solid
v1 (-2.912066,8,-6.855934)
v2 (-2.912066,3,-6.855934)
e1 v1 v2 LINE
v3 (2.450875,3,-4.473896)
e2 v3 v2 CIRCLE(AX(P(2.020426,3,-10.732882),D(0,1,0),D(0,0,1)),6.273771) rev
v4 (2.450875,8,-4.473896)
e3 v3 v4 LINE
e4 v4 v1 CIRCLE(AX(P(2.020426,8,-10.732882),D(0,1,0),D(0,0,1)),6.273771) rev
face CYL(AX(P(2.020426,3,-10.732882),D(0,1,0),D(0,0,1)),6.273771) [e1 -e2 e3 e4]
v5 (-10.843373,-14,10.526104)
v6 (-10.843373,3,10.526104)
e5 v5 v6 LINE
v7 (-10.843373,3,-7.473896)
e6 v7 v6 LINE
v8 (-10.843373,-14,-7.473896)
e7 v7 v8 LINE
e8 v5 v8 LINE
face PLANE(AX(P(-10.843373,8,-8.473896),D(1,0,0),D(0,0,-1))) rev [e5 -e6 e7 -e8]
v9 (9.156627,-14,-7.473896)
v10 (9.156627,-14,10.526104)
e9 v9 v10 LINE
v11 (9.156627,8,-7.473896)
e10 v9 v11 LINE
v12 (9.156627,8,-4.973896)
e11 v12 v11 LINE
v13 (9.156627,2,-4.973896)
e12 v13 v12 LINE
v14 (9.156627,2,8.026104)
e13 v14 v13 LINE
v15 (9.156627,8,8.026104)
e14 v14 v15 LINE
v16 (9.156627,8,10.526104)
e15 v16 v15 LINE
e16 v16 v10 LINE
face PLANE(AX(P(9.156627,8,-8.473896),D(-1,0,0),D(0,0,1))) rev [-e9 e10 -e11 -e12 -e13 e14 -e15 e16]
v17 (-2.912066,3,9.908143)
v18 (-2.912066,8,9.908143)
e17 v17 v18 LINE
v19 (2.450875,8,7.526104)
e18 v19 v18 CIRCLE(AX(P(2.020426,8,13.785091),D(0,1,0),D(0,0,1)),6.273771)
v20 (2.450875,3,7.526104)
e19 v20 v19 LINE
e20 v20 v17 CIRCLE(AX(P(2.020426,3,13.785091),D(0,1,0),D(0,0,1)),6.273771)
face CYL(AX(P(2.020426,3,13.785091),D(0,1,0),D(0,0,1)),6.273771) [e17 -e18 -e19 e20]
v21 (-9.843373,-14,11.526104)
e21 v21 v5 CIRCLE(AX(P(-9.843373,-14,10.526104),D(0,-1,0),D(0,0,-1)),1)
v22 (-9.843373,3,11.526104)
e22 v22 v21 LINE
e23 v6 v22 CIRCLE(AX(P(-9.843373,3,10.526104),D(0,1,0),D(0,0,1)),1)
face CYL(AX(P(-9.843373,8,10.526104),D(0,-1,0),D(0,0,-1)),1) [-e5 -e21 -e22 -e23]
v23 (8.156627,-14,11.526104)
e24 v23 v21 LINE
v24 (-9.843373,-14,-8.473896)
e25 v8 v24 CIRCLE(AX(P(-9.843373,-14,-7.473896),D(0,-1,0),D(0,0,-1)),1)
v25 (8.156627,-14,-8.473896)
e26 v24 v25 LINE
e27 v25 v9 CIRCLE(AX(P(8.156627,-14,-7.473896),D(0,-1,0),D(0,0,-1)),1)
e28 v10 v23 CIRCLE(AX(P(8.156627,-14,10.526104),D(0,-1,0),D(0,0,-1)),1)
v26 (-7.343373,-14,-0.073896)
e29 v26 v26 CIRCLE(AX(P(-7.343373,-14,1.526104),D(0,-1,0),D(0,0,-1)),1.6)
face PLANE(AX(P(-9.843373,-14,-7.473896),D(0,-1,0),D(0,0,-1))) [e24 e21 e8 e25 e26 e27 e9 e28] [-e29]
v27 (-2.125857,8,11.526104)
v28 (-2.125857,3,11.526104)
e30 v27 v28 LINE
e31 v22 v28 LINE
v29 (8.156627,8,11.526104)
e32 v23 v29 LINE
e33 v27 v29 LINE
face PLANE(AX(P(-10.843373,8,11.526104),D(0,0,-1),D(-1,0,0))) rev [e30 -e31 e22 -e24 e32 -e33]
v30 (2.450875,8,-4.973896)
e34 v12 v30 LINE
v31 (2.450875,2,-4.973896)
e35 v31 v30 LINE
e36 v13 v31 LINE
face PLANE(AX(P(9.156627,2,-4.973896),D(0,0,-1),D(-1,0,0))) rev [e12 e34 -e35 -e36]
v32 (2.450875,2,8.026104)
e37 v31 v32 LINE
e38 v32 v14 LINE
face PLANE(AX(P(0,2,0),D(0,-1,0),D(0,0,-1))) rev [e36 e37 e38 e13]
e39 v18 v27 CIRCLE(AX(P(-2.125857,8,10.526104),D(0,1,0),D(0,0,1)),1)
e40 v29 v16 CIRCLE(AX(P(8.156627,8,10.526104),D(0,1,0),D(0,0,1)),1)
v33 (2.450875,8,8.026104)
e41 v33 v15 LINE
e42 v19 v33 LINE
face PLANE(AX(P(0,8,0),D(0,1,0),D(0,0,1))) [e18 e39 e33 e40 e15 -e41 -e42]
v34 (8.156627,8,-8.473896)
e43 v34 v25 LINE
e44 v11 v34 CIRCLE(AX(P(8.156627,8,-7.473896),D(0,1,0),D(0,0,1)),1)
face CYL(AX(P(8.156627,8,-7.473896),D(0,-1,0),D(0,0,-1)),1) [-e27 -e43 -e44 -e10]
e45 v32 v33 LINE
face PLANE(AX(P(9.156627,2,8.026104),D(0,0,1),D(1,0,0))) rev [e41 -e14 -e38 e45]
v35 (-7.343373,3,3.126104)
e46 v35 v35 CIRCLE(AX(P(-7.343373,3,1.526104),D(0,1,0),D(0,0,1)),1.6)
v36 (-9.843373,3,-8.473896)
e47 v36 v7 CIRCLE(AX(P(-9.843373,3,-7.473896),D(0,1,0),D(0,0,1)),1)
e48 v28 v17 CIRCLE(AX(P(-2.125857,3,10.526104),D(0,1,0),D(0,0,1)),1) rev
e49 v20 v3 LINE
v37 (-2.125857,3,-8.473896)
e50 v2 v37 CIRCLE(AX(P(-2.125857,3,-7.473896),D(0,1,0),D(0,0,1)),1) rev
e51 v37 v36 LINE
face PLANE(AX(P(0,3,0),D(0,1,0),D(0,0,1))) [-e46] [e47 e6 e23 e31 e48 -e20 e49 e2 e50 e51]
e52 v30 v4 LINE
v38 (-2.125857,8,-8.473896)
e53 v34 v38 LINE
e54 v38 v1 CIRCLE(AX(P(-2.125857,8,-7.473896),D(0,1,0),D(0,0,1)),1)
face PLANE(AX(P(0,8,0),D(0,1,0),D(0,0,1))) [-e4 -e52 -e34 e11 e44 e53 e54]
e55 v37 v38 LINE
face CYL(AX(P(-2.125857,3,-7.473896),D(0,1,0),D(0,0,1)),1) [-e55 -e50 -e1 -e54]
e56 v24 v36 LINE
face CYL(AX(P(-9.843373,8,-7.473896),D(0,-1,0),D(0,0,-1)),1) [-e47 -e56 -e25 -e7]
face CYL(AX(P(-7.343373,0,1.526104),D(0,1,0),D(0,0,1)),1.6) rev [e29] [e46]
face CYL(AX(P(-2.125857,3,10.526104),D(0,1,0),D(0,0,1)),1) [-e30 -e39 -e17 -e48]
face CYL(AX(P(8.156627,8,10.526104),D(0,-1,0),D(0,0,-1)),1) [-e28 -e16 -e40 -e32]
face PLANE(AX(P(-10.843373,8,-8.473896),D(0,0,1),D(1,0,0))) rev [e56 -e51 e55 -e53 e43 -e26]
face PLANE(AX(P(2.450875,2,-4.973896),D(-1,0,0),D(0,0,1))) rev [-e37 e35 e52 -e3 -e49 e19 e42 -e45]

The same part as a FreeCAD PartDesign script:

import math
import FreeCAD as App
import Part
import Sketcher

V = App.Vector
Q = App.Units.Quantity


def edges_at(feature, points):
    """Names of the edges that pass closest to the given points."""
    edges = feature.Shape.Edges
    near = lambda p: min(range(len(edges)), key=lambda i: edges[i].distToShape(Part.Vertex(*p))[0])
    return sorted({f"Edge{near(p) + 1}" for p in points})


def add_polygon(sketch, points):
    """Adds a closed chain of lines whose ends are joined by coincident constraints."""
    first, n = sketch.GeometryCount, len(points)
    for a, b in zip(points, points[1:] + points[:1]):
        sketch.addGeometry(Part.LineSegment(App.Vector(*a, 0), App.Vector(*b, 0)), False)
    for i in range(n):
        sketch.addConstraint(Sketcher.Constraint("Coincident", first + i, 2, first + (i + 1) % n, 1))

doc = App.newDocument("Part")
params = doc.addObject("Spreadsheet::Sheet", "Params")
for row, (alias, value) in enumerate([
    ("sketch1_width", "20 mm"),
    ("pad1_length", "8 mm"),
    ("sketch2_height", "13 mm"),
    ("pocket1_length", "6 mm"),
    ("sketch3_height", "12 mm"),
    ("sketch3_height2", "20 mm"),
    ("pocket2_length", "5 mm"),
    ("sketch4_diameter", "3.2 mm"),
    ("pocket3_length", "3 mm"),
    ("fillet_radius", "1 mm"),
    ("sketch5_radius", "1 mm"),
    ("sketch5_diameter", "3.2 mm"),
    ("sketch5_width", "18 mm"),
    ("pad2_length", "14 mm"),
], start=1):
    params.set(f"A{row}", alias)
    params.set(f"B{row}", "=" + value)
    params.setAlias(f"B{row}", alias)

body = doc.addObject("PartDesign::Body", "Body")

# Sketch on XZ plane
sketch1 = body.newObject("Sketcher::SketchObject", "Sketch")
sketch1.AttachmentSupport = (doc.getObject("XZ_Plane"), [""])
sketch1.MapMode = "FlatFace"
add_polygon(sketch1, [(-11, -8), (-11, 12), (9, 12), (9, -8)])  # lines 0-3
sketch1.addConstraint([
    Sketcher.Constraint("Vertical", 0),
    Sketcher.Constraint("Horizontal", 1),
    Sketcher.Constraint("Vertical", 2),
    Sketcher.Constraint("Horizontal", 3),
    Sketcher.Constraint("Equal", 3, 0),
    Sketcher.Constraint("DistanceX", 1, 1, 1, 2, Q("20 mm")),
    Sketcher.Constraint("DistanceX", 0, 2, -1, 1, Q("10.843373 mm")),
    Sketcher.Constraint("DistanceY", -1, 1, 0, 2, Q("11.526104 mm")),
])
sketch1.setExpression("Constraints[9]", "Params.sketch1_width")
pad1 = body.newObject("PartDesign::Pad", "Pad")
pad1.Profile = sketch1
pad1.setExpression("Length", "Params.pad1_length")
pad1.Reversed = True

# Sketch on XZ plane
sketch2 = body.newObject("Sketcher::SketchObject", "Sketch001")
sketch2.AttachmentSupport = (doc.getObject("XZ_Plane"), [""])
sketch2.MapMode = "FlatFace"
sketch2.AttachmentOffset = App.Placement(V(0, 0, -8), App.Rotation())
add_polygon(sketch2, [(2, -5), (2, 8), (9, 8), (9, -5)])  # lines 0-3
sketch2.addConstraint([
    Sketcher.Constraint("Vertical", 0),
    Sketcher.Constraint("Horizontal", 1),
    Sketcher.Constraint("Vertical", 2),
    Sketcher.Constraint("Horizontal", 3),
    Sketcher.Constraint("DistanceY", 0, 1, 0, 2, Q("13 mm")),
    Sketcher.Constraint("DistanceX", 1, 1, 1, 2, Q("6.705751 mm")),
    Sketcher.Constraint("DistanceX", -1, 1, 0, 2, Q("2.450875 mm")),
    Sketcher.Constraint("DistanceY", -1, 1, 0, 2, Q("8.026104 mm")),
])
sketch2.setExpression("Constraints[8]", "Params.sketch2_height")
pocket1 = body.newObject("PartDesign::Pocket", "Pocket")
pocket1.Profile = sketch2
pocket1.setExpression("Length", "Params.pocket1_length")
pocket1.Reversed = True

# Sketch on XZ plane
sketch3 = body.newObject("Sketcher::SketchObject", "Sketch002")
sketch3.AttachmentSupport = (doc.getObject("XZ_Plane"), [""])
sketch3.MapMode = "FlatFace"
sketch3.AttachmentOffset = App.Placement(V(0, 0, -8), App.Rotation())
sketch3.addGeometry([
    Part.LineSegment(V(2.5, 7.5, 0), V(2.5, -4.5, 0)),  # 0
    Part.ArcOfCircle(Part.Circle(V(2, -10.7, 0), V(0, 0, 1), 6.3), math.radians(86.07), math.radians(93.93)),  # 1
    Part.ArcOfCircle(Part.Circle(V(2, -10.7, 0), V(0, 0, 1), 6.3), math.radians(94), math.radians(159)),  # 2
    Part.LineSegment(V(-3.8, -8.5, 0), V(-10.8, -8.5, 0)),  # 3
    Part.LineSegment(V(-10.8, -8.5, 0), V(-10.8, 11.5, 0)),  # 4
    Part.LineSegment(V(-10.8, 11.5, 0), V(-3.8, 11.5, 0)),  # 5
    Part.ArcOfCircle(Part.Circle(V(2, 13.8, 0), V(0, 0, 1), 6.3), math.radians(-159), math.radians(-94)),  # 6
    Part.ArcOfCircle(Part.Circle(V(2, 13.8, 0), V(0, 0, 1), 6.3), math.radians(-93.93), math.radians(-86.07)),  # 7
], False)
sketch3.addConstraint([
    Sketcher.Constraint("Coincident", 0, 2, 1, 1),
    Sketcher.Constraint("Tangent", 1, 2, 2, 1),
    Sketcher.Constraint("Coincident", 2, 2, 3, 1),
    Sketcher.Constraint("Coincident", 3, 2, 4, 1),
    Sketcher.Constraint("Coincident", 4, 2, 5, 1),
    Sketcher.Constraint("Coincident", 5, 2, 6, 1),
    Sketcher.Constraint("Tangent", 6, 2, 7, 1),
    Sketcher.Constraint("Coincident", 7, 2, 0, 1),
    Sketcher.Constraint("Vertical", 0),
    Sketcher.Constraint("Horizontal", 3),
    Sketcher.Constraint("Vertical", 4),
    Sketcher.Constraint("Horizontal", 5),
    Sketcher.Constraint("Equal", 1, 2),
    Sketcher.Constraint("Equal", 2, 6),
    Sketcher.Constraint("Equal", 6, 7),
    Sketcher.Constraint("Horizontal", 0, 2, 1, 2),
    Sketcher.Constraint("Horizontal", 6, 2, 7, 2),
    Sketcher.Constraint("Vertical", 2, 3, 6, 3),
    Sketcher.Constraint("Vertical", 2, 2, 5, 2),
    Sketcher.Constraint("DistanceY", 0, 2, 0, 1, Q("12 mm")),
    Sketcher.Constraint("DistanceY", 4, 1, 4, 2, Q("20 mm")),
    Sketcher.Constraint("Radius", 1, Q("6.273771 mm")),
    Sketcher.Constraint("DistanceX", 1, 2, 0, 2, Q("0.860899 mm")),
    Sketcher.Constraint("DistanceX", 3, 2, 2, 3, Q("12.863799 mm")),
    Sketcher.Constraint("DistanceY", -1, 1, 6, 3, Q("13.785091 mm")),
    Sketcher.Constraint("DistanceX", -1, 1, 1, 3, Q("2.020426 mm")),
])
sketch3.setExpression("Constraints[19]", "Params.sketch3_height")
sketch3.setExpression("Constraints[20]", "Params.sketch3_height2")
pocket2 = body.newObject("PartDesign::Pocket", "Pocket001")
pocket2.Profile = sketch3
pocket2.setExpression("Length", "Params.pocket2_length")
pocket2.Reversed = True

# Sketch on XZ plane
sketch4 = body.newObject("Sketcher::SketchObject", "Sketch003")
sketch4.AttachmentSupport = (doc.getObject("XZ_Plane"), [""])
sketch4.MapMode = "FlatFace"
sketch4.AttachmentOffset = App.Placement(V(0, 0, -3), App.Rotation())
sketch4.addGeometry(Part.Circle(V(-7.3, 1.5, 0), V(0, 0, 1), 1.6), False)
sketch4.addConstraint([
    Sketcher.Constraint("Diameter", 0, Q("3.2 mm")),
    Sketcher.Constraint("DistanceX", 0, 3, -1, 1, Q("7.343373 mm")),
    Sketcher.Constraint("DistanceY", -1, 1, 0, 3, Q("1.526104 mm")),
])
sketch4.setExpression("Constraints[0]", "Params.sketch4_diameter")
pocket3 = body.newObject("PartDesign::Pocket", "Pocket002")
pocket3.Profile = sketch4
pocket3.setExpression("Length", "Params.pocket3_length")
pocket3.Reversed = True
doc.recompute()

fillet = body.newObject("PartDesign::Fillet", "Fillet")
fillet.Base = (pocket3, edges_at(pocket3, [
    (-10.843, 1.5, -8.474),
    (-10.843, 1.5, 11.526),
    (-3.833, 5.5, 11.526),
    (-3.833, 5.5, -8.474),
    (9.157, 4, -8.474),
    (9.157, 4, 11.526),
]))
fillet.setExpression("Radius", "Params.fillet_radius")

# Sketch on XZ plane
sketch5 = body.newObject("Sketcher::SketchObject", "Sketch004")
sketch5.AttachmentSupport = (doc.getObject("XZ_Plane"), [""])
sketch5.MapMode = "FlatFace"
sketch5.addGeometry([
    Part.LineSegment(V(-9.8, -8.5, 0), V(8.2, -8.5, 0)),  # 0
    Part.ArcOfCircle(Part.Circle(V(8.2, -7.5, 0), V(0, 0, 1), 1), math.radians(-90), math.radians(0)),  # 1
    Part.LineSegment(V(9.2, -7.5, 0), V(9.2, 10.5, 0)),  # 2
    Part.ArcOfCircle(Part.Circle(V(8.2, 10.5, 0), V(0, 0, 1), 1), math.radians(0), math.radians(90)),  # 3
    Part.LineSegment(V(8.2, 11.5, 0), V(-9.8, 11.5, 0)),  # 4
    Part.ArcOfCircle(Part.Circle(V(-9.8, 10.5, 0), V(0, 0, 1), 1), math.radians(90), math.radians(180)),  # 5
    Part.LineSegment(V(-10.8, 10.5, 0), V(-10.8, -7.5, 0)),  # 6
    Part.ArcOfCircle(Part.Circle(V(-9.8, -7.5, 0), V(0, 0, 1), 1), math.radians(180), math.radians(270)),  # 7
    Part.Circle(V(-7.3, 1.5, 0), V(0, 0, 1), 1.6),  # 8
], False)
sketch5.addConstraint([
    Sketcher.Constraint("Tangent", 0, 2, 1, 1),
    Sketcher.Constraint("Tangent", 1, 2, 2, 1),
    Sketcher.Constraint("Tangent", 2, 2, 3, 1),
    Sketcher.Constraint("Tangent", 3, 2, 4, 1),
    Sketcher.Constraint("Tangent", 4, 2, 5, 1),
    Sketcher.Constraint("Tangent", 5, 2, 6, 1),
    Sketcher.Constraint("Tangent", 6, 2, 7, 1),
    Sketcher.Constraint("Tangent", 7, 2, 0, 1),
    Sketcher.Constraint("Horizontal", 0),
    Sketcher.Constraint("Vertical", 2),
    Sketcher.Constraint("Horizontal", 4),
    Sketcher.Constraint("Vertical", 6),
    Sketcher.Constraint("Equal", 1, 3),
    Sketcher.Constraint("Equal", 3, 5),
    Sketcher.Constraint("Equal", 5, 7),
    Sketcher.Constraint("Equal", 4, 2),
    Sketcher.Constraint("Radius", 1, Q("1 mm")),
    Sketcher.Constraint("Diameter", 8, Q("3.2 mm")),
    Sketcher.Constraint("DistanceX", 0, 1, 0, 2, Q("18 mm")),
    Sketcher.Constraint("DistanceY", 8, 3, 5, 3, Q("9 mm")),
    Sketcher.Constraint("DistanceX", 5, 3, 8, 3, Q("2.5 mm")),
    Sketcher.Constraint("DistanceX", -1, 1, 1, 3, Q("8.156627 mm")),
    Sketcher.Constraint("DistanceY", 1, 3, -1, 1, Q("7.473896 mm")),
])
sketch5.setExpression("Constraints[16]", "Params.sketch5_radius")
sketch5.setExpression("Constraints[17]", "Params.sketch5_diameter")
sketch5.setExpression("Constraints[18]", "Params.sketch5_width")
pad2 = body.newObject("PartDesign::Pad", "Pad001")
pad2.Profile = sketch5
pad2.setExpression("Length", "Params.pad2_length")

doc.recompute()
